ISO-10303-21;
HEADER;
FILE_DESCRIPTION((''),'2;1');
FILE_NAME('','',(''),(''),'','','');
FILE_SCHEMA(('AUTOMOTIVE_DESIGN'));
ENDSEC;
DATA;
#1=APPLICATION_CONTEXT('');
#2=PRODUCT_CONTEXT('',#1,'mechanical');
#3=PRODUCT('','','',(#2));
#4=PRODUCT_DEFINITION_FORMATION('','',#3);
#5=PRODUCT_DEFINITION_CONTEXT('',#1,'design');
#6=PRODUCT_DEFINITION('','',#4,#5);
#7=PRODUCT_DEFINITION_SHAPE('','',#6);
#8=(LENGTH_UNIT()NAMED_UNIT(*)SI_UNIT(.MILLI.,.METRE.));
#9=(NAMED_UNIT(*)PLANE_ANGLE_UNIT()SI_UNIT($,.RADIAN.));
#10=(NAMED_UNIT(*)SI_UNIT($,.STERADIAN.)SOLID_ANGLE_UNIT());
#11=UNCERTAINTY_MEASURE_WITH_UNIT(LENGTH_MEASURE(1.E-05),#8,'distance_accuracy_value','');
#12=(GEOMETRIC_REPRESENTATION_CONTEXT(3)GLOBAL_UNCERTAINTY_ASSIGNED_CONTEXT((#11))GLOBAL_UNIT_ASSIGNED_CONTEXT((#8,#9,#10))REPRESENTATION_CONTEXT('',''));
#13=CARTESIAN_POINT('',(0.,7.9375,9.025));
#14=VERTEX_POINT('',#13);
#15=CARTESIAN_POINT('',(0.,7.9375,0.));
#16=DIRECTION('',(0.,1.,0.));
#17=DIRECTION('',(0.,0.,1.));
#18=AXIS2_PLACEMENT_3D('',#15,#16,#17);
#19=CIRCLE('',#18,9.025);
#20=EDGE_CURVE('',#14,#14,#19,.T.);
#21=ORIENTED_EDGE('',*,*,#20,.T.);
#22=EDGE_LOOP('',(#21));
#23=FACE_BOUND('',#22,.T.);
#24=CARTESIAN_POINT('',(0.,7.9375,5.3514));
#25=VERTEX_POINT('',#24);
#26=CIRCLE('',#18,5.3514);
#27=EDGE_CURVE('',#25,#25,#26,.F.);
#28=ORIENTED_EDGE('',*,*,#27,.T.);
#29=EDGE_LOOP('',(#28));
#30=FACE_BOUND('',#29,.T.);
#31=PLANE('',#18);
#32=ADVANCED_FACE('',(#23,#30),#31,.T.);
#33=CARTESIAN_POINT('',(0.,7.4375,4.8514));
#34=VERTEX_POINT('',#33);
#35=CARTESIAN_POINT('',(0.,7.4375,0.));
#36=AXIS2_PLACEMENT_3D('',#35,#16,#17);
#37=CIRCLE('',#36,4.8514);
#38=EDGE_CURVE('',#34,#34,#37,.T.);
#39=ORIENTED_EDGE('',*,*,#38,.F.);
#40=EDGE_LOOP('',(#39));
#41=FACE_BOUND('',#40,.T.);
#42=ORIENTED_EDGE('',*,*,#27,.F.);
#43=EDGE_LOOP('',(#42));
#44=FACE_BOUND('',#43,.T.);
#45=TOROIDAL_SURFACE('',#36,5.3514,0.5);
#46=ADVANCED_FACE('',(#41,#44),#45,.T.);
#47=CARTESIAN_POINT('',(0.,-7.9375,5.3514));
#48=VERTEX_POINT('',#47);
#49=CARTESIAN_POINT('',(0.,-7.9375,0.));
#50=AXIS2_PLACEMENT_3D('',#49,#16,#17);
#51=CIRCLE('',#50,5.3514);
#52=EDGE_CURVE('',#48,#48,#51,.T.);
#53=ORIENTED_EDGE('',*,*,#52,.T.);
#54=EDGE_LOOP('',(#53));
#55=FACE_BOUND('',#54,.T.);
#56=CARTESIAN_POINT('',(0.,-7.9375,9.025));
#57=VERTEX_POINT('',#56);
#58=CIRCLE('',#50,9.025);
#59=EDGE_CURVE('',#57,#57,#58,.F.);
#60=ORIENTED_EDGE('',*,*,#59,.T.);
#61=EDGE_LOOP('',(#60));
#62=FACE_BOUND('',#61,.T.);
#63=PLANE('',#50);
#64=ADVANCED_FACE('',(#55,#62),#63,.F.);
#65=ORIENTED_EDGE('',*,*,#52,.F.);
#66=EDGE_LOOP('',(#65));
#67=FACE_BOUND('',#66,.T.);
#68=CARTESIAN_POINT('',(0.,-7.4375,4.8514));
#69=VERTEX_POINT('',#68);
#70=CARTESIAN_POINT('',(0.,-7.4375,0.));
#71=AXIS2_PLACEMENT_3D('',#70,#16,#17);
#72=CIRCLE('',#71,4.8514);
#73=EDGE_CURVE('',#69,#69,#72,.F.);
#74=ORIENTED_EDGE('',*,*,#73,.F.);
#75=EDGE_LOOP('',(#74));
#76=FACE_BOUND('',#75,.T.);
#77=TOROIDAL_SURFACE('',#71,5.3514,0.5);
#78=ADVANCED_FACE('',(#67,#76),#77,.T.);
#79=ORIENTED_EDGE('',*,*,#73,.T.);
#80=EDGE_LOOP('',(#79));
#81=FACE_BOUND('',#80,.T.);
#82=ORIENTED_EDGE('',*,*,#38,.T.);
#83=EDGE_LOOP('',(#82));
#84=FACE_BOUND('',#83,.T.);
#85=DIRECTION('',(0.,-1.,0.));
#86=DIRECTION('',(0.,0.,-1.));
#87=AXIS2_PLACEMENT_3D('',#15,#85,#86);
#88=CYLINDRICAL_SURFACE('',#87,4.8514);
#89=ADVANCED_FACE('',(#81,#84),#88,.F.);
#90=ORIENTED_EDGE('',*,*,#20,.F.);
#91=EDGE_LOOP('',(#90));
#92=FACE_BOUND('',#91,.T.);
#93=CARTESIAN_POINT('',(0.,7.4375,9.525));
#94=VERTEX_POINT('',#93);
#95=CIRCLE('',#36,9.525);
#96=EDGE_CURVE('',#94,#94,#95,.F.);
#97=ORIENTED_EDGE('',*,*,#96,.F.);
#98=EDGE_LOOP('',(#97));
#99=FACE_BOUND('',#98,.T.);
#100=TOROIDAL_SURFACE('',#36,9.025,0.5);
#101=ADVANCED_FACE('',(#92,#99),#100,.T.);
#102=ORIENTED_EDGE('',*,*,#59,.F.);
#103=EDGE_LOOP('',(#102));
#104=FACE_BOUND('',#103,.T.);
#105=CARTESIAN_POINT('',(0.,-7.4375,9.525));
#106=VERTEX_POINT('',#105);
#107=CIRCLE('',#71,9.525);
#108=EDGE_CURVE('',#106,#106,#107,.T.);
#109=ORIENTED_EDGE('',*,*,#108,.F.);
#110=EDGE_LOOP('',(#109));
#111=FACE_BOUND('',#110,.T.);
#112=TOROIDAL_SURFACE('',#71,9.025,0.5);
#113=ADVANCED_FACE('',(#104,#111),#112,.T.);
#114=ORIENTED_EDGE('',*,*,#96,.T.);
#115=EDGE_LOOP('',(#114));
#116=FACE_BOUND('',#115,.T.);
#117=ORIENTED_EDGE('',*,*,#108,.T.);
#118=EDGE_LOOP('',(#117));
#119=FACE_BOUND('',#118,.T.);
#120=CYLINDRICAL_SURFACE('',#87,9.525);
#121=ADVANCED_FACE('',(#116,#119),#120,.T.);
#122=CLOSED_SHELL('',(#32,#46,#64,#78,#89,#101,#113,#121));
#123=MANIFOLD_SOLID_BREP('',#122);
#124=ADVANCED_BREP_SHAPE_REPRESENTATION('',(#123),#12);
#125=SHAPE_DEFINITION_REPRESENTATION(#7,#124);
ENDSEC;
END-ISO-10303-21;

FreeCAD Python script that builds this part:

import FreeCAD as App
import Part
import Sketcher
from FreeCAD import Vector
Q = App.Units.Quantity


def edges_at(feature, points):
    """Names of the edges that pass closest to the given points."""
    edges = feature.Shape.Edges
    near = lambda p: min(range(len(edges)), key=lambda i: edges[i].distToShape(Part.Vertex(*p))[0])
    return sorted({f"Edge{near(p) + 1}" for p in points})

doc = App.newDocument("Part")
params = doc.addObject("Spreadsheet::Sheet", "Params")
for row, (alias, value) in enumerate([
    ("sketch1_diameter", "0.75 in"),
    ("sketch1_diameter2", "0.382 in"),
    ("pad1_length", "0.625 in"),
    ("fillet_radius", "0.5 mm"),
], start=1):
    params.set(f"A{row}", alias)
    params.set(f"B{row}", "=" + value)
    params.setAlias(f"B{row}", alias)

body = doc.addObject("PartDesign::Body", "Body")

# Sketch on XZ plane
sketch1 = body.newObject("Sketcher::SketchObject", "Sketch")
sketch1.AttachmentSupport = (doc.getObject("XZ_Plane"), [""])
sketch1.MapMode = "FlatFace"
sketch1.addGeometry([
    Part.Circle(Vector(0, 0, 0), Vector(0, 0, 1), 9.5),
    Part.Circle(Vector(0, 0, 0), Vector(0, 0, 1), 4.9),
], False)
sketch1.addConstraint([
    Sketcher.Constraint("Coincident", 0, 3, -1, 1),
    Sketcher.Constraint("Coincident", 1, 3, -1, 1),
    Sketcher.Constraint("Diameter", 0, Q("0.75 in")),
    Sketcher.Constraint("Diameter", 1, Q("0.382 in")),
])
sketch1.setExpression("Constraints[2]", "Params.sketch1_diameter")
sketch1.setExpression("Constraints[3]", "Params.sketch1_diameter2")
pad1 = body.newObject("PartDesign::Pad", "Pad")
pad1.Profile = sketch1
pad1.setExpression("Length", "Params.pad1_length")
pad1.Midplane = True
doc.recompute()

fillet = body.newObject("PartDesign::Fillet", "Fillet")
fillet.Base = (pad1, edges_at(pad1, [
    (-9.525, -7.938, 0),
    (-9.525, 7.938, 0),
    (-4.851, -7.938, 0),
    (-4.851, 7.938, 0),
]))
fillet.setExpression("Radius", "Params.fillet_radius")

doc.recompute()
